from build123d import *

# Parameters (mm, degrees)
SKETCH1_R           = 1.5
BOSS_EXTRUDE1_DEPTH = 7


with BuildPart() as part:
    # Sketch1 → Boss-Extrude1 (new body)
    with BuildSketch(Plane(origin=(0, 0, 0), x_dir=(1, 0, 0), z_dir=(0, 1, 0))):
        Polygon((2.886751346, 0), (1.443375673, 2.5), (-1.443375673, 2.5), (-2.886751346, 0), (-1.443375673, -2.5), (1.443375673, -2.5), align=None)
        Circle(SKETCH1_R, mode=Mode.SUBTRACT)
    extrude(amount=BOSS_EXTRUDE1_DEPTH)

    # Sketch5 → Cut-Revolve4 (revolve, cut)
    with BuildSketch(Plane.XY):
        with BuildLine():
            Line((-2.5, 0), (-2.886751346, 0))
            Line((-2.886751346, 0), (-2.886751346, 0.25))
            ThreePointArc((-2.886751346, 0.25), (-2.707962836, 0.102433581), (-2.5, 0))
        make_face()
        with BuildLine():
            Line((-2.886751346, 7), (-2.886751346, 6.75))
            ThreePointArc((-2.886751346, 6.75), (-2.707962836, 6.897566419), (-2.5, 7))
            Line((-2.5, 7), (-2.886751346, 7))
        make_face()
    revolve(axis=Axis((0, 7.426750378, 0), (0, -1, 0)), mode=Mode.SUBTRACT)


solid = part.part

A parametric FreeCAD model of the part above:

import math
import FreeCAD as App
import Part
import Sketcher

V = App.Vector
Q = App.Units.Quantity


def add_polygon(sketch, points):
    """Adds a closed chain of lines whose ends are joined by coincident constraints."""
    first, n = sketch.GeometryCount, len(points)
    for a, b in zip(points, points[1:] + points[:1]):
        sketch.addGeometry(Part.LineSegment(App.Vector(*a, 0), App.Vector(*b, 0)), False)
    for i in range(n):
        sketch.addConstraint(Sketcher.Constraint("Coincident", first + i, 2, first + (i + 1) % n, 1))

doc = App.newDocument("Part")
body = doc.addObject("PartDesign::Body", "Body")

# Sketch on XZ plane
sketch1 = body.newObject("Sketcher::SketchObject", "Sketch")
sketch1.AttachmentSupport = (doc.getObject("XZ_Plane"), [""])
sketch1.MapMode = "FlatFace"
add_polygon(sketch1, [(2.9, 0), (1.4, -2.5), (-1.4, -2.5), (-2.9, 0), (-1.4, 2.5), (1.4, 2.5)])  # lines 0-5
sketch1.addGeometry(Part.Circle(V(0, 0, 0), V(0, 0, 1), 1.5), False)  # 6
sketch1.addConstraint([
    Sketcher.Constraint("Horizontal", 1),
    Sketcher.Constraint("Horizontal", 4),
    Sketcher.Constraint("Coincident", 6, 3, -1, 1),
    Sketcher.Constraint("Symmetric", 0, 2, 3, 2, -1, 1),
    Sketcher.Constraint("Symmetric", 2, 2, 5, 2, -1, 1),
    Sketcher.Constraint("PointOnObject", 2, 2, -1),
    Sketcher.Constraint("Parallel", 2, 5),
    Sketcher.Constraint("Vertical", 1, 2, 3, 2),
    Sketcher.Constraint("Diameter", 6, Q("3 mm")),
    Sketcher.Constraint("Angle", 0, Q("-120 deg")),
    Sketcher.Constraint("DistanceY", 1, 2, 3, 2, Q("5 mm")),
    Sketcher.Constraint("DistanceX", 1, 2, 1, 1, Q("2.886751 mm")),
])
pad1 = body.newObject("PartDesign::Pad", "Pad")
pad1.Profile = sketch1
pad1.Length = 7
pad1.Reversed = True

# Sketch on XY plane
sketch2 = body.newObject("Sketcher::SketchObject", "Sketch001")
sketch2.AttachmentSupport = (doc.getObject("XY_Plane"), [""])
sketch2.MapMode = "FlatFace"
sketch2.addGeometry([
    Part.LineSegment(V(-2.89, 0, 0), V(-2.5, 0, 0)),  # 0
    Part.ArcOfCircle(Part.Circle(V(-2.17, 0.94, 0), V(0, 0, 1), 1), math.radians(-136), math.radians(-110)),  # 1
    Part.LineSegment(V(-2.89, 0.25, 0), V(-2.89, 0, 0)),  # 2
    Part.LineSegment(V(-2.89, 7, 0), V(-2.89, 6.75, 0)),  # 3
    Part.ArcOfCircle(Part.Circle(V(-2.17, 6.06, 0), V(0, 0, 1), 1), math.radians(110), math.radians(136)),  # 4
    Part.LineSegment(V(-2.5, 7, 0), V(-2.89, 7, 0)),  # 5
], False)
sketch2.addConstraint([
    Sketcher.Constraint("Coincident", 0, 2, 1, 2),
    Sketcher.Constraint("Coincident", 1, 1, 2, 1),
    Sketcher.Constraint("Coincident", 2, 2, 0, 1),
    Sketcher.Constraint("Coincident", 3, 2, 4, 2),
    Sketcher.Constraint("Coincident", 4, 1, 5, 1),
    Sketcher.Constraint("Coincident", 5, 2, 3, 1),
    Sketcher.Constraint("Horizontal", 0),
    Sketcher.Constraint("Vertical", 2),
    Sketcher.Constraint("Vertical", 3),
    Sketcher.Constraint("Horizontal", 5),
    Sketcher.Constraint("Equal", 1, 4),
    Sketcher.Constraint("PointOnObject", 0, 2, -1),
    Sketcher.Constraint("Vertical", 1, 3, 4, 3),
    Sketcher.Constraint("Vertical", 2, 2, 3, 2),
    Sketcher.Constraint("Vertical", 0, 2, 4, 1),
    Sketcher.Constraint("Radius", 1, Q("1 mm")),
    Sketcher.Constraint("DistanceY", -1, 1, 4, 1, Q("7 mm")),
    Sketcher.Constraint("DistanceY", 2, 2, 2, 1, Q("0.25 mm")),
    Sketcher.Constraint("DistanceX", 0, 2, -1, 1, Q("2.5 mm")),
    Sketcher.Constraint("DistanceX", 0, 1, 0, 2, Q("0.386751 mm")),
])
groove = body.newObject("PartDesign::Groove", "Groove")
groove.Profile = sketch2
groove.ReferenceAxis = (sketch2, ["V_Axis"])
groove.Angle = 360

doc.recompute()
